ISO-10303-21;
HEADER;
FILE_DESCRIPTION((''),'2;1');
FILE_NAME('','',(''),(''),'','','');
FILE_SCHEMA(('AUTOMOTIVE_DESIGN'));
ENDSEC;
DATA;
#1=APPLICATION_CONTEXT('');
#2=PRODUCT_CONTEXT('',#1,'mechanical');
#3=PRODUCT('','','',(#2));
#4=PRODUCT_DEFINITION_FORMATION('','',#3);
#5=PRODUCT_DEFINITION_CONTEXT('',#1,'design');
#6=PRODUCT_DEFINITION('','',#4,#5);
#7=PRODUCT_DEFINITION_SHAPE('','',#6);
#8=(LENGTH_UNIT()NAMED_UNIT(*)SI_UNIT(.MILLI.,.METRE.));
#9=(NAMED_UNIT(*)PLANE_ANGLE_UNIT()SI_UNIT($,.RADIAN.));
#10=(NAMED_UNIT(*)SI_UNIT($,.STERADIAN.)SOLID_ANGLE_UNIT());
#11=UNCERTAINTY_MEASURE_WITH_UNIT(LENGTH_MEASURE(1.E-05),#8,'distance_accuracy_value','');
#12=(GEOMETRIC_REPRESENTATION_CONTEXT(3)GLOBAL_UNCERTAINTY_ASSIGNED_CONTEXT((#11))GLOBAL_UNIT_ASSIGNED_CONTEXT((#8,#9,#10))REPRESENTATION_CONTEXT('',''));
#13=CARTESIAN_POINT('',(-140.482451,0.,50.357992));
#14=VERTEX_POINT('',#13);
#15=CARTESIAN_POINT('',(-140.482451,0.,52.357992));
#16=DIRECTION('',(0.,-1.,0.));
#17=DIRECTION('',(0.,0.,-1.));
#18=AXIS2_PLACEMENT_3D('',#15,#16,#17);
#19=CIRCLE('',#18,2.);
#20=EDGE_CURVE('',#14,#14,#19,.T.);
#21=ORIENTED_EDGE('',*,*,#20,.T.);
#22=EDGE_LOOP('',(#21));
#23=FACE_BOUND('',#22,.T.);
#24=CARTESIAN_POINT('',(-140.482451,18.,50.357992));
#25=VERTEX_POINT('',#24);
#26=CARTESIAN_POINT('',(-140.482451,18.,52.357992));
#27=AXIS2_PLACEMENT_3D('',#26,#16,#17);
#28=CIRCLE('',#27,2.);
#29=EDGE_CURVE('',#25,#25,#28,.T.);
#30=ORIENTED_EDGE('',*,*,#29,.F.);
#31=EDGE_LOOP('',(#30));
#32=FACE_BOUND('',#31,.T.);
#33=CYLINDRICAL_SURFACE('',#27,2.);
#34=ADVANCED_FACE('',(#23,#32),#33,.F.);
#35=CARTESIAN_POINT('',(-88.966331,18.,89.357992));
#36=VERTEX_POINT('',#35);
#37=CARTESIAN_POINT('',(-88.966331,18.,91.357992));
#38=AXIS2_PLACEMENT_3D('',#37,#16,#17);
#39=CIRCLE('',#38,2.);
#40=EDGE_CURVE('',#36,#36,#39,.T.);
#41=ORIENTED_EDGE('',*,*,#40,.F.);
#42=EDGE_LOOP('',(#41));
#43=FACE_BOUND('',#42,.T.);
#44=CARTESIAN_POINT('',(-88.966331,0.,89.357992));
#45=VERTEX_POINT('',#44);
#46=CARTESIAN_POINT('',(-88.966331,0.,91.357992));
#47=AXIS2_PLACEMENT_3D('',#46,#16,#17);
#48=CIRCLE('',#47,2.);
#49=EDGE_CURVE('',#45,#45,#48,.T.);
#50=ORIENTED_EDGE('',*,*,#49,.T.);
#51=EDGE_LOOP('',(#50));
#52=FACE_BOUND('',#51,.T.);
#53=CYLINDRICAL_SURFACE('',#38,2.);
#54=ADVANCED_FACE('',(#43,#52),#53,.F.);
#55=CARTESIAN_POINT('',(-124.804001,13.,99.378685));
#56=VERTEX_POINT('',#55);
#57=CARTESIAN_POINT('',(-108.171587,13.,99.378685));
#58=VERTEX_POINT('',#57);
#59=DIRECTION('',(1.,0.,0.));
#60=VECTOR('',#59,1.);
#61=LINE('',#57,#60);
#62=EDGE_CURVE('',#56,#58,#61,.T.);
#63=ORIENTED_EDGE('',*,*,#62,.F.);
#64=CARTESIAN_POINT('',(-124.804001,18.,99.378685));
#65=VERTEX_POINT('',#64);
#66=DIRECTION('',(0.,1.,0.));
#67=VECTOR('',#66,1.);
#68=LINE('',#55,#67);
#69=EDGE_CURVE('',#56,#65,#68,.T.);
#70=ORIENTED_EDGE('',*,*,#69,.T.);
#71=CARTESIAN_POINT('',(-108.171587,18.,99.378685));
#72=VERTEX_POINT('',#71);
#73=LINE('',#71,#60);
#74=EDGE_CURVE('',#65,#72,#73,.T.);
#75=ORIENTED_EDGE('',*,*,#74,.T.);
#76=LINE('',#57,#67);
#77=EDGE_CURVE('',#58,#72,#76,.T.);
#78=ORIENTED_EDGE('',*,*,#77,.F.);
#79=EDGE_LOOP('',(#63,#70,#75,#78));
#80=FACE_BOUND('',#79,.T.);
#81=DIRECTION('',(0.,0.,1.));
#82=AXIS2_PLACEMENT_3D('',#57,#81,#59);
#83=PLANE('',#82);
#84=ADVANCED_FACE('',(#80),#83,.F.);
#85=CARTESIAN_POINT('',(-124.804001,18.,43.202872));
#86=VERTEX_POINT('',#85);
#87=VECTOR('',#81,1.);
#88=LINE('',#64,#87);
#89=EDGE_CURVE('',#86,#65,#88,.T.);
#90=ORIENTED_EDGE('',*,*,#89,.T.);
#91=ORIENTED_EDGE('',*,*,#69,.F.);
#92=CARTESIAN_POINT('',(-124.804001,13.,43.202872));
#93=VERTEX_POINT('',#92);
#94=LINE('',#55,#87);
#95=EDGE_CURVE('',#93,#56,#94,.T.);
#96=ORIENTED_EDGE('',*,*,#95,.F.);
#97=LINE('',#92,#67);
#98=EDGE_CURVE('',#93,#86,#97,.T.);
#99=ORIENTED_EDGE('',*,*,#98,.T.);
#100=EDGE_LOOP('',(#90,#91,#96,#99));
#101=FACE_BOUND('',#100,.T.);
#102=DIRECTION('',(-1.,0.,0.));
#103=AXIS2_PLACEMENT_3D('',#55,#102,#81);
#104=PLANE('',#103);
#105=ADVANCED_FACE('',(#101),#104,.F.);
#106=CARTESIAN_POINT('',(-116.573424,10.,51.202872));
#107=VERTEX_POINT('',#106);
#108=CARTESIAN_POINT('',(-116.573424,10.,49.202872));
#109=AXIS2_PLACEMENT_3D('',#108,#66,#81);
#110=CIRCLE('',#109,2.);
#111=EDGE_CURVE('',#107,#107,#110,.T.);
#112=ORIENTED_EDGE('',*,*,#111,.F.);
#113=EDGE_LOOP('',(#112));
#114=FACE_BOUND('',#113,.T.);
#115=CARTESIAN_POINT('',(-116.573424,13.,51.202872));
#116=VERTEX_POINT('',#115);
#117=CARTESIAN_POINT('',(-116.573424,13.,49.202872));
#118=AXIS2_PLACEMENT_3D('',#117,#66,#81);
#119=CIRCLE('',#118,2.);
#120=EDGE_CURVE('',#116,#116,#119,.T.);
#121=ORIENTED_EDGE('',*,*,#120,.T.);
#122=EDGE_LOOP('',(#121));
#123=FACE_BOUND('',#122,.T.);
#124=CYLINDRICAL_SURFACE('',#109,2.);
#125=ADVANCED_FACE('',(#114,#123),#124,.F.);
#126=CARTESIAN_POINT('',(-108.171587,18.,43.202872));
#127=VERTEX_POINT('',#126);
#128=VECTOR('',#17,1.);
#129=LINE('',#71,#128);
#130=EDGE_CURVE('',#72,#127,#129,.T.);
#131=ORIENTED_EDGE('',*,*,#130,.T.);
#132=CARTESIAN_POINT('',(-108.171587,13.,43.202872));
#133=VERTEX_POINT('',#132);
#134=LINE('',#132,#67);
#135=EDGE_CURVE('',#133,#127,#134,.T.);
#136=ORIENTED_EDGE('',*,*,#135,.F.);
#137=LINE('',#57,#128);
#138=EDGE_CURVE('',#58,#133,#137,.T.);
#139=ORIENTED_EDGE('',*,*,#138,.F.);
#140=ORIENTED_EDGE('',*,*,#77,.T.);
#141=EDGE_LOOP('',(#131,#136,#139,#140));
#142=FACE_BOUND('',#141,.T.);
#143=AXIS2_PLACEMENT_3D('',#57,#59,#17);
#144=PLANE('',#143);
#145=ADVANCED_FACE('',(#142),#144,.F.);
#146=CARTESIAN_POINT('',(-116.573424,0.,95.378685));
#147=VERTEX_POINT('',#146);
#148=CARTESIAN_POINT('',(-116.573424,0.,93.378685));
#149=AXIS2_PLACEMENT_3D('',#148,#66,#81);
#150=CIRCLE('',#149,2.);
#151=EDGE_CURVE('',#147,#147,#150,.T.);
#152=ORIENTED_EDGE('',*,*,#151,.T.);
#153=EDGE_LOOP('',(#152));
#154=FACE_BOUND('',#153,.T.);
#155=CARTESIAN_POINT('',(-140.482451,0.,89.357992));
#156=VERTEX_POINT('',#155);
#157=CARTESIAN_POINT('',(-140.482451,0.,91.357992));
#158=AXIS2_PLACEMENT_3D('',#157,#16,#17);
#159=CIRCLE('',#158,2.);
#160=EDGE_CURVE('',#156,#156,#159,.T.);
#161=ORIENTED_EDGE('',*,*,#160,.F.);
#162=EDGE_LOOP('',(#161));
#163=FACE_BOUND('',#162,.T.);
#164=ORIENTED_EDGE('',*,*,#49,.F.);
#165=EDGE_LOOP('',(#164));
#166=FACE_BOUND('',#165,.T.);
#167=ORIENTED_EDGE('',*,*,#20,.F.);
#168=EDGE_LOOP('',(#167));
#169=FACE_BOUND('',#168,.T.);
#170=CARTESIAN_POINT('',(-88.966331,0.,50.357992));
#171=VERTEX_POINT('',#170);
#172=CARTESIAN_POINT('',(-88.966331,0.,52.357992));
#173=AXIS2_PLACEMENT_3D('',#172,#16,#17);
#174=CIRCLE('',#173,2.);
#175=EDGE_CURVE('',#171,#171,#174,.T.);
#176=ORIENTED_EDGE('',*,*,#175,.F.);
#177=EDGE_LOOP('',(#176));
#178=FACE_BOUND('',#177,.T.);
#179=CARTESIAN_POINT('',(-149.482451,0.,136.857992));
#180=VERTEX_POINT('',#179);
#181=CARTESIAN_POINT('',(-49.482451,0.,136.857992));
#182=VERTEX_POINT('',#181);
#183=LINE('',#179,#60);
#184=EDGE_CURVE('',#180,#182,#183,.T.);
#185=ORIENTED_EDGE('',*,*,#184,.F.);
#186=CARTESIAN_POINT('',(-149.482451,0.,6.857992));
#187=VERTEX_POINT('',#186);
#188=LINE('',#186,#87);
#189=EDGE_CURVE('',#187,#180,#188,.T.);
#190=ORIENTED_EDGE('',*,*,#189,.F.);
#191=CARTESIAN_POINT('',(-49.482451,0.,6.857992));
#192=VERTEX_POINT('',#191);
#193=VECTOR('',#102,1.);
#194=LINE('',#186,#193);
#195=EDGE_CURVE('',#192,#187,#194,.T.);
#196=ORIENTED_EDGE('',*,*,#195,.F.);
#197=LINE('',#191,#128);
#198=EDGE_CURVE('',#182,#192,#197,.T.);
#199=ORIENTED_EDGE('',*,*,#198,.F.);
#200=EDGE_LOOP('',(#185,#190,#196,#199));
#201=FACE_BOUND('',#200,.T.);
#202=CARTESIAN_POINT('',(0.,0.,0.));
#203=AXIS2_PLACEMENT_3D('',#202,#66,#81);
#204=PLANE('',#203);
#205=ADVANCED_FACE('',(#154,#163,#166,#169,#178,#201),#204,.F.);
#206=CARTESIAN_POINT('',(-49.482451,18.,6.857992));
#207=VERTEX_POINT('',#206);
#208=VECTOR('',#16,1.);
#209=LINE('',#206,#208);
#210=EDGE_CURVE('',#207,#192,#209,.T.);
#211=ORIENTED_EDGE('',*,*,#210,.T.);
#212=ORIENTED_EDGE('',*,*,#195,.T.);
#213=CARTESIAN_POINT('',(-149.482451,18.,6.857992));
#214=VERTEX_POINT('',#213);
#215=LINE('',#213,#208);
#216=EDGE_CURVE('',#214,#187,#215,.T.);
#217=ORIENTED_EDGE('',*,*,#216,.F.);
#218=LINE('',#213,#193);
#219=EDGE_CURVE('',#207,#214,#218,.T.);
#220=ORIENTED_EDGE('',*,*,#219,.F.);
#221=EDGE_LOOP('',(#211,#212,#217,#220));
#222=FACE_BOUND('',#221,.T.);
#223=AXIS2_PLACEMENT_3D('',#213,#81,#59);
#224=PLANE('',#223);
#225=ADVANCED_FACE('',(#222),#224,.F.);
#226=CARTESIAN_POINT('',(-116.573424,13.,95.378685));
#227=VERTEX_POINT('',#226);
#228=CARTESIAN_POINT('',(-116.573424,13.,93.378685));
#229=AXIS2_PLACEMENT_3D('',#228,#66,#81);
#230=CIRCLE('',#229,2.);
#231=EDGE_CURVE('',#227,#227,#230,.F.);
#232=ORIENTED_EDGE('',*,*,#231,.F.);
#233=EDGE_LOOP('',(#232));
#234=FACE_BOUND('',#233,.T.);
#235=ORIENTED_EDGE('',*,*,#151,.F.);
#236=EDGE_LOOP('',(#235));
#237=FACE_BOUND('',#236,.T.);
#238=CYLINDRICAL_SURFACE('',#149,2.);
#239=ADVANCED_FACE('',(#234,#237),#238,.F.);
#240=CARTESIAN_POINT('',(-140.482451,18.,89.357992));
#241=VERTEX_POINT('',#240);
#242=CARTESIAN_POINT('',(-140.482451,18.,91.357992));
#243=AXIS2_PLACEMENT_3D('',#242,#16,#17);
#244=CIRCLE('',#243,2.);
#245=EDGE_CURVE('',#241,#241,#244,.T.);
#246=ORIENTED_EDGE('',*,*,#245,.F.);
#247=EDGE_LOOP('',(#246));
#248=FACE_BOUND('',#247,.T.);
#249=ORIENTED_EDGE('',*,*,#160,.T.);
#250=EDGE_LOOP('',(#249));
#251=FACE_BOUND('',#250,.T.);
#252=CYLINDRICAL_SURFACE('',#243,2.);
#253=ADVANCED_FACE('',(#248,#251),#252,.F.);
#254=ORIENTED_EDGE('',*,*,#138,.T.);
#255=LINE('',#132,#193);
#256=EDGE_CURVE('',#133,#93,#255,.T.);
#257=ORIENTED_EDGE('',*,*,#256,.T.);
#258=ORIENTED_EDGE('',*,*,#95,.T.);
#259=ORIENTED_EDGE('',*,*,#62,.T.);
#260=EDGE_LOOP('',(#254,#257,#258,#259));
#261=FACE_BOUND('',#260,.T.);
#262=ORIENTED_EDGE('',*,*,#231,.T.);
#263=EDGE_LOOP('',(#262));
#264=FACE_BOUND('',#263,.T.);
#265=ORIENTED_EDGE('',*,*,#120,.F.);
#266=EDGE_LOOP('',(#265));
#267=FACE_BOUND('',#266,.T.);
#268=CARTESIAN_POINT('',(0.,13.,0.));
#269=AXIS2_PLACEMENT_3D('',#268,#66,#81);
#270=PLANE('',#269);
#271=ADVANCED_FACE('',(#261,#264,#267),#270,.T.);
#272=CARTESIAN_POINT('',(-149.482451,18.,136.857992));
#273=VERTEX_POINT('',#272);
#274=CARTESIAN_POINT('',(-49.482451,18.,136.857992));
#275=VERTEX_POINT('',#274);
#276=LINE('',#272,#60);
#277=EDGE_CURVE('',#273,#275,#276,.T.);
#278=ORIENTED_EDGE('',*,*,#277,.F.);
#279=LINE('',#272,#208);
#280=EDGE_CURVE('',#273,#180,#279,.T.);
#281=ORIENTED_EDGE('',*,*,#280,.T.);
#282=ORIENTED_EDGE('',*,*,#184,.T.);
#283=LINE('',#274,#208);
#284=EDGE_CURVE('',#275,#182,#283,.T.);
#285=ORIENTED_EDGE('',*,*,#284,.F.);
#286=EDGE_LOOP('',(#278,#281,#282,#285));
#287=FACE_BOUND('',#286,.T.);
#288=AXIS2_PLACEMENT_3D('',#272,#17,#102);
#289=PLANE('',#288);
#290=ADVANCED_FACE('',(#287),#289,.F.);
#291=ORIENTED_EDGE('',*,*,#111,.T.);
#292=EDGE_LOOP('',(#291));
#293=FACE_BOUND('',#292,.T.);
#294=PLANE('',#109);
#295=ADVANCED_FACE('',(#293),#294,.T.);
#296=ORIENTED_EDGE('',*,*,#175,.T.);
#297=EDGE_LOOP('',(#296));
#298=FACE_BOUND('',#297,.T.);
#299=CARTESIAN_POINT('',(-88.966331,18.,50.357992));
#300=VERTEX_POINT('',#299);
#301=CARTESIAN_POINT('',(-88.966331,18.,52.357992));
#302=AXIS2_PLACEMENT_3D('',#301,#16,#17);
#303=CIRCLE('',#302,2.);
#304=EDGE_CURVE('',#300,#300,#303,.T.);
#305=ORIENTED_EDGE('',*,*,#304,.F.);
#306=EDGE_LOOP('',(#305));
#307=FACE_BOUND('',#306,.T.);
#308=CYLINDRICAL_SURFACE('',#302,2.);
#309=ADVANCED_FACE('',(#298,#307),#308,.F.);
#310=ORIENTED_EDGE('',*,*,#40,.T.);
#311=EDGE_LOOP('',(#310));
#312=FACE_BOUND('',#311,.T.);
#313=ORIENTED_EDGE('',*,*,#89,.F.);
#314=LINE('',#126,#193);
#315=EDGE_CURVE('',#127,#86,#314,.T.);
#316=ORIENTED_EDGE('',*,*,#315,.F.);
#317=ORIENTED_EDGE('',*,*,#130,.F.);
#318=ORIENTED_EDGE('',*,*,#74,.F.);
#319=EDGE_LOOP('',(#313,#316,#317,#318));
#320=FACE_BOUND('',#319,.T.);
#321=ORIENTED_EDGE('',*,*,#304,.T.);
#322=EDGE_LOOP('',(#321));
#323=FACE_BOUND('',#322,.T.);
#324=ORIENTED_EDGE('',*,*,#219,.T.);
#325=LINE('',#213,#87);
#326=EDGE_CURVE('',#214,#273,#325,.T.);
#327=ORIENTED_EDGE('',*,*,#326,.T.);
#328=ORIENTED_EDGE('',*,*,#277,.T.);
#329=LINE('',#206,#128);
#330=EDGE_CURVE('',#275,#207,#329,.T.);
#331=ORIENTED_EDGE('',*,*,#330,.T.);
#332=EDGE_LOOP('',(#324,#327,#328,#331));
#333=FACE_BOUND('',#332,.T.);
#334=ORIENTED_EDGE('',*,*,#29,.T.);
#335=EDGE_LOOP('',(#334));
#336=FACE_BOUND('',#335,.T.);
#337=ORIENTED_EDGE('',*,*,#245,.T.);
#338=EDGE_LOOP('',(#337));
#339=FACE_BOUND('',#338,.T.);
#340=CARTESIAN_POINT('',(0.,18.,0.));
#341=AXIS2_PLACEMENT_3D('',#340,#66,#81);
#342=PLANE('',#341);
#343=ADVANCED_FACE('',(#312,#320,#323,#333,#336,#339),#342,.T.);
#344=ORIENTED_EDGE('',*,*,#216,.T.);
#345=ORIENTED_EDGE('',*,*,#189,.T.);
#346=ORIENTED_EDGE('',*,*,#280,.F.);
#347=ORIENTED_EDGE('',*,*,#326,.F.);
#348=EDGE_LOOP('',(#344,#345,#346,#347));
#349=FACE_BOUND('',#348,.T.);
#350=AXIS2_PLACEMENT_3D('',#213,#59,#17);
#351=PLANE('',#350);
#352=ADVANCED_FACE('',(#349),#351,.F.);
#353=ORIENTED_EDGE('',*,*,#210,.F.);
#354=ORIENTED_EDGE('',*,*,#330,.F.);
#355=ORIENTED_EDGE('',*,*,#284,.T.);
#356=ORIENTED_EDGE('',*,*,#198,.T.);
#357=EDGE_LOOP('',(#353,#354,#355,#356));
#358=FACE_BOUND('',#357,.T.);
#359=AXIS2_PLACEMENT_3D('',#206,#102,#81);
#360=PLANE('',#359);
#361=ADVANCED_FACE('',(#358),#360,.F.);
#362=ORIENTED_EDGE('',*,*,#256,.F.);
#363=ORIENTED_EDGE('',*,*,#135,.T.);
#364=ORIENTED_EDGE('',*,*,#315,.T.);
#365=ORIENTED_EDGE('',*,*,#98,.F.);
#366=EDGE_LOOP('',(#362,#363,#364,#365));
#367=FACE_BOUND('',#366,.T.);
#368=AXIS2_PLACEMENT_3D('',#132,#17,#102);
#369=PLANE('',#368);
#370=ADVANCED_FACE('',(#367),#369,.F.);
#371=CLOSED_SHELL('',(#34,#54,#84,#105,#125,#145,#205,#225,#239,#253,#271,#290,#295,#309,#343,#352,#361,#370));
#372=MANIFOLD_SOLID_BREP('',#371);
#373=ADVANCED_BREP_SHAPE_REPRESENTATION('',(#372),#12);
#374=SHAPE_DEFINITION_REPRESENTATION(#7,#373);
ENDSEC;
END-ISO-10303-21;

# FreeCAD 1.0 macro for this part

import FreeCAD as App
import Part
import Sketcher
from FreeCAD import Vector
Q = App.Units.Quantity

doc = App.newDocument("Part")
body = doc.addObject("PartDesign::Body", "Body")

# Sketch on XZ plane
sketch1 = doc.addObject("Sketcher::SketchObject", "Sketch")
body.addObject(sketch1)
sketch1.AttachmentSupport = (doc.XZ_Plane, [""])
sketch1.MapMode = "FlatFace"
sketch1.addGeometry([
    Part.LineSegment(Vector(-149, 7, 0), Vector(-149, 137, 0)),
    Part.LineSegment(Vector(-149, 137, 0), Vector(-49, 137, 0)),
    Part.LineSegment(Vector(-49, 137, 0), Vector(-49, 7, 0)),
    Part.LineSegment(Vector(-49, 7, 0), Vector(-149, 7, 0)),
], False)
sketch1.addConstraint([
    Sketcher.Constraint("Coincident", 0, 2, 1, 1),
    Sketcher.Constraint("Coincident", 1, 2, 2, 1),
    Sketcher.Constraint("Coincident", 2, 2, 3, 1),
    Sketcher.Constraint("Coincident", 3, 2, 0, 1),
    Sketcher.Constraint("Vertical", 0),
    Sketcher.Constraint("Horizontal", 1),
    Sketcher.Constraint("Vertical", 2),
    Sketcher.Constraint("Horizontal", 3),
    Sketcher.Constraint("DistanceX", 1, 1, 1, 2, Q("100 mm")),
    Sketcher.Constraint("DistanceY", 0, 1, 0, 2, Q("130 mm")),
    Sketcher.Constraint("DistanceX", 0, 2, -1, 1, Q("149.482451 mm")),
    Sketcher.Constraint("DistanceY", -1, 1, 0, 2, Q("136.857992 mm")),
])
pad1 = doc.addObject("PartDesign::Pad", "Pad")
body.addObject(pad1)
pad1.Profile = sketch1
pad1.Length = 18
pad1.Reversed = True

# Sketch on XZ plane
sketch2 = doc.addObject("Sketcher::SketchObject", "Sketch001")
body.addObject(sketch2)
sketch2.AttachmentSupport = (doc.XZ_Plane, [""])
sketch2.MapMode = "FlatFace"
sketch2.AttachmentOffset = App.Placement(Vector(0, 0, -18), App.Rotation())
sketch2.addGeometry(Part.Circle(Vector(-116.6, 93.4, 0), Vector(0, 0, 1), 2), False)
sketch2.addConstraint([
    Sketcher.Constraint("Diameter", 0, Q("4 mm")),
    Sketcher.Constraint("DistanceX", 0, 3, -1, 1, Q("116.573424 mm")),
    Sketcher.Constraint("DistanceY", -1, 1, 0, 3, Q("93.378685 mm")),
])
pocket1 = doc.addObject("PartDesign::Pocket", "Pocket")
body.addObject(pocket1)
pocket1.Profile = sketch2
pocket1.Type = "ThroughAll"
pocket1.Reversed = True

# Sketch on XZ plane
sketch3 = doc.addObject("Sketcher::SketchObject", "Sketch002")
body.addObject(sketch3)
sketch3.AttachmentSupport = (doc.XZ_Plane, [""])
sketch3.MapMode = "FlatFace"
sketch3.addGeometry([
    Part.Circle(Vector(-89, 52.4, 0), Vector(0, 0, 1), 2),
    Part.Circle(Vector(-89, 91.4, 0), Vector(0, 0, 1), 2),
    Part.Circle(Vector(-140.5, 91.4, 0), Vector(0, 0, 1), 2),
    Part.Circle(Vector(-140.5, 52.4, 0), Vector(0, 0, 1), 2),
], False)
sketch3.addConstraint([
    Sketcher.Constraint("Equal", 0, 1),
    Sketcher.Constraint("Equal", 1, 2),
    Sketcher.Constraint("Equal", 2, 3),
    Sketcher.Constraint("Horizontal", 1, 3, 2, 3),
    Sketcher.Constraint("Horizontal", 0, 3, 3, 3),
    Sketcher.Constraint("Vertical", 0, 3, 1, 3),
    Sketcher.Constraint("Vertical", 2, 3, 3, 3),
    Sketcher.Constraint("Diameter", 0, Q("4 mm")),
    Sketcher.Constraint("DistanceY", 0, 3, 1, 3, Q("39 mm")),
    Sketcher.Constraint("DistanceX", 0, 3, -1, 1, Q("88.966331 mm")),
    Sketcher.Constraint("DistanceY", -1, 1, 0, 3, Q("52.357992 mm")),
    Sketcher.Constraint("DistanceX", 2, 3, -1, 1, Q("140.482451 mm")),
])
pocket2 = doc.addObject("PartDesign::Pocket", "Pocket001")
body.addObject(pocket2)
pocket2.Profile = sketch3
pocket2.Type = "ThroughAll"

# Sketch on XZ plane
sketch4 = doc.addObject("Sketcher::SketchObject", "Sketch003")
body.addObject(sketch4)
sketch4.AttachmentSupport = (doc.XZ_Plane, [""])
sketch4.MapMode = "FlatFace"
sketch4.AttachmentOffset = App.Placement(Vector(0, 0, -18), App.Rotation())
sketch4.addGeometry([
    Part.LineSegment(Vector(-125, 43, 0), Vector(-125, 99, 0)),
    Part.LineSegment(Vector(-125, 99, 0), Vector(-108, 99, 0)),
    Part.LineSegment(Vector(-108, 99, 0), Vector(-108, 43, 0)),
    Part.LineSegment(Vector(-108, 43, 0), Vector(-125, 43, 0)),
], False)
sketch4.addConstraint([
    Sketcher.Constraint("Coincident", 0, 2, 1, 1),
    Sketcher.Constraint("Coincident", 1, 2, 2, 1),
    Sketcher.Constraint("Coincident", 2, 2, 3, 1),
    Sketcher.Constraint("Coincident", 3, 2, 0, 1),
    Sketcher.Constraint("Vertical", 0),
    Sketcher.Constraint("Horizontal", 1),
    Sketcher.Constraint("Vertical", 2),
    Sketcher.Constraint("Horizontal", 3),
    Sketcher.Constraint("DistanceX", 0, 2, -1, 1, Q("124.804001 mm")),
    Sketcher.Constraint("DistanceX", 1, 1, 1, 2, Q("16.632414 mm")),
    Sketcher.Constraint("DistanceY", 0, 1, 0, 2, Q("56.175813 mm")),
    Sketcher.Constraint("DistanceY", -1, 1, 2, 2, Q("43.202872 mm")),
])
pocket3 = doc.addObject("PartDesign::Pocket", "Pocket002")
body.addObject(pocket3)
pocket3.Profile = sketch4
pocket3.Length = 5
pocket3.Reversed = True

# Sketch on XZ plane
sketch5 = doc.addObject("Sketcher::SketchObject", "Sketch004")
body.addObject(sketch5)
sketch5.AttachmentSupport = (doc.XZ_Plane, [""])
sketch5.MapMode = "FlatFace"
sketch5.AttachmentOffset = App.Placement(Vector(0, 0, -13), App.Rotation())
sketch5.addGeometry(Part.Circle(Vector(-116.6, 49.2, 0), Vector(0, 0, 1), 2), False)
sketch5.addConstraint([
    Sketcher.Constraint("Diameter", 0, Q("4 mm")),
    Sketcher.Constraint("DistanceY", -1, 1, 0, 3, Q("49.202872 mm")),
    Sketcher.Constraint("DistanceX", 0, 3, -1, 1, Q("116.573424 mm")),
])
pocket4 = doc.addObject("PartDesign::Pocket", "Pocket003")
body.addObject(pocket4)
pocket4.Profile = sketch5
pocket4.Length = 3
pocket4.Reversed = True

doc.recompute()
